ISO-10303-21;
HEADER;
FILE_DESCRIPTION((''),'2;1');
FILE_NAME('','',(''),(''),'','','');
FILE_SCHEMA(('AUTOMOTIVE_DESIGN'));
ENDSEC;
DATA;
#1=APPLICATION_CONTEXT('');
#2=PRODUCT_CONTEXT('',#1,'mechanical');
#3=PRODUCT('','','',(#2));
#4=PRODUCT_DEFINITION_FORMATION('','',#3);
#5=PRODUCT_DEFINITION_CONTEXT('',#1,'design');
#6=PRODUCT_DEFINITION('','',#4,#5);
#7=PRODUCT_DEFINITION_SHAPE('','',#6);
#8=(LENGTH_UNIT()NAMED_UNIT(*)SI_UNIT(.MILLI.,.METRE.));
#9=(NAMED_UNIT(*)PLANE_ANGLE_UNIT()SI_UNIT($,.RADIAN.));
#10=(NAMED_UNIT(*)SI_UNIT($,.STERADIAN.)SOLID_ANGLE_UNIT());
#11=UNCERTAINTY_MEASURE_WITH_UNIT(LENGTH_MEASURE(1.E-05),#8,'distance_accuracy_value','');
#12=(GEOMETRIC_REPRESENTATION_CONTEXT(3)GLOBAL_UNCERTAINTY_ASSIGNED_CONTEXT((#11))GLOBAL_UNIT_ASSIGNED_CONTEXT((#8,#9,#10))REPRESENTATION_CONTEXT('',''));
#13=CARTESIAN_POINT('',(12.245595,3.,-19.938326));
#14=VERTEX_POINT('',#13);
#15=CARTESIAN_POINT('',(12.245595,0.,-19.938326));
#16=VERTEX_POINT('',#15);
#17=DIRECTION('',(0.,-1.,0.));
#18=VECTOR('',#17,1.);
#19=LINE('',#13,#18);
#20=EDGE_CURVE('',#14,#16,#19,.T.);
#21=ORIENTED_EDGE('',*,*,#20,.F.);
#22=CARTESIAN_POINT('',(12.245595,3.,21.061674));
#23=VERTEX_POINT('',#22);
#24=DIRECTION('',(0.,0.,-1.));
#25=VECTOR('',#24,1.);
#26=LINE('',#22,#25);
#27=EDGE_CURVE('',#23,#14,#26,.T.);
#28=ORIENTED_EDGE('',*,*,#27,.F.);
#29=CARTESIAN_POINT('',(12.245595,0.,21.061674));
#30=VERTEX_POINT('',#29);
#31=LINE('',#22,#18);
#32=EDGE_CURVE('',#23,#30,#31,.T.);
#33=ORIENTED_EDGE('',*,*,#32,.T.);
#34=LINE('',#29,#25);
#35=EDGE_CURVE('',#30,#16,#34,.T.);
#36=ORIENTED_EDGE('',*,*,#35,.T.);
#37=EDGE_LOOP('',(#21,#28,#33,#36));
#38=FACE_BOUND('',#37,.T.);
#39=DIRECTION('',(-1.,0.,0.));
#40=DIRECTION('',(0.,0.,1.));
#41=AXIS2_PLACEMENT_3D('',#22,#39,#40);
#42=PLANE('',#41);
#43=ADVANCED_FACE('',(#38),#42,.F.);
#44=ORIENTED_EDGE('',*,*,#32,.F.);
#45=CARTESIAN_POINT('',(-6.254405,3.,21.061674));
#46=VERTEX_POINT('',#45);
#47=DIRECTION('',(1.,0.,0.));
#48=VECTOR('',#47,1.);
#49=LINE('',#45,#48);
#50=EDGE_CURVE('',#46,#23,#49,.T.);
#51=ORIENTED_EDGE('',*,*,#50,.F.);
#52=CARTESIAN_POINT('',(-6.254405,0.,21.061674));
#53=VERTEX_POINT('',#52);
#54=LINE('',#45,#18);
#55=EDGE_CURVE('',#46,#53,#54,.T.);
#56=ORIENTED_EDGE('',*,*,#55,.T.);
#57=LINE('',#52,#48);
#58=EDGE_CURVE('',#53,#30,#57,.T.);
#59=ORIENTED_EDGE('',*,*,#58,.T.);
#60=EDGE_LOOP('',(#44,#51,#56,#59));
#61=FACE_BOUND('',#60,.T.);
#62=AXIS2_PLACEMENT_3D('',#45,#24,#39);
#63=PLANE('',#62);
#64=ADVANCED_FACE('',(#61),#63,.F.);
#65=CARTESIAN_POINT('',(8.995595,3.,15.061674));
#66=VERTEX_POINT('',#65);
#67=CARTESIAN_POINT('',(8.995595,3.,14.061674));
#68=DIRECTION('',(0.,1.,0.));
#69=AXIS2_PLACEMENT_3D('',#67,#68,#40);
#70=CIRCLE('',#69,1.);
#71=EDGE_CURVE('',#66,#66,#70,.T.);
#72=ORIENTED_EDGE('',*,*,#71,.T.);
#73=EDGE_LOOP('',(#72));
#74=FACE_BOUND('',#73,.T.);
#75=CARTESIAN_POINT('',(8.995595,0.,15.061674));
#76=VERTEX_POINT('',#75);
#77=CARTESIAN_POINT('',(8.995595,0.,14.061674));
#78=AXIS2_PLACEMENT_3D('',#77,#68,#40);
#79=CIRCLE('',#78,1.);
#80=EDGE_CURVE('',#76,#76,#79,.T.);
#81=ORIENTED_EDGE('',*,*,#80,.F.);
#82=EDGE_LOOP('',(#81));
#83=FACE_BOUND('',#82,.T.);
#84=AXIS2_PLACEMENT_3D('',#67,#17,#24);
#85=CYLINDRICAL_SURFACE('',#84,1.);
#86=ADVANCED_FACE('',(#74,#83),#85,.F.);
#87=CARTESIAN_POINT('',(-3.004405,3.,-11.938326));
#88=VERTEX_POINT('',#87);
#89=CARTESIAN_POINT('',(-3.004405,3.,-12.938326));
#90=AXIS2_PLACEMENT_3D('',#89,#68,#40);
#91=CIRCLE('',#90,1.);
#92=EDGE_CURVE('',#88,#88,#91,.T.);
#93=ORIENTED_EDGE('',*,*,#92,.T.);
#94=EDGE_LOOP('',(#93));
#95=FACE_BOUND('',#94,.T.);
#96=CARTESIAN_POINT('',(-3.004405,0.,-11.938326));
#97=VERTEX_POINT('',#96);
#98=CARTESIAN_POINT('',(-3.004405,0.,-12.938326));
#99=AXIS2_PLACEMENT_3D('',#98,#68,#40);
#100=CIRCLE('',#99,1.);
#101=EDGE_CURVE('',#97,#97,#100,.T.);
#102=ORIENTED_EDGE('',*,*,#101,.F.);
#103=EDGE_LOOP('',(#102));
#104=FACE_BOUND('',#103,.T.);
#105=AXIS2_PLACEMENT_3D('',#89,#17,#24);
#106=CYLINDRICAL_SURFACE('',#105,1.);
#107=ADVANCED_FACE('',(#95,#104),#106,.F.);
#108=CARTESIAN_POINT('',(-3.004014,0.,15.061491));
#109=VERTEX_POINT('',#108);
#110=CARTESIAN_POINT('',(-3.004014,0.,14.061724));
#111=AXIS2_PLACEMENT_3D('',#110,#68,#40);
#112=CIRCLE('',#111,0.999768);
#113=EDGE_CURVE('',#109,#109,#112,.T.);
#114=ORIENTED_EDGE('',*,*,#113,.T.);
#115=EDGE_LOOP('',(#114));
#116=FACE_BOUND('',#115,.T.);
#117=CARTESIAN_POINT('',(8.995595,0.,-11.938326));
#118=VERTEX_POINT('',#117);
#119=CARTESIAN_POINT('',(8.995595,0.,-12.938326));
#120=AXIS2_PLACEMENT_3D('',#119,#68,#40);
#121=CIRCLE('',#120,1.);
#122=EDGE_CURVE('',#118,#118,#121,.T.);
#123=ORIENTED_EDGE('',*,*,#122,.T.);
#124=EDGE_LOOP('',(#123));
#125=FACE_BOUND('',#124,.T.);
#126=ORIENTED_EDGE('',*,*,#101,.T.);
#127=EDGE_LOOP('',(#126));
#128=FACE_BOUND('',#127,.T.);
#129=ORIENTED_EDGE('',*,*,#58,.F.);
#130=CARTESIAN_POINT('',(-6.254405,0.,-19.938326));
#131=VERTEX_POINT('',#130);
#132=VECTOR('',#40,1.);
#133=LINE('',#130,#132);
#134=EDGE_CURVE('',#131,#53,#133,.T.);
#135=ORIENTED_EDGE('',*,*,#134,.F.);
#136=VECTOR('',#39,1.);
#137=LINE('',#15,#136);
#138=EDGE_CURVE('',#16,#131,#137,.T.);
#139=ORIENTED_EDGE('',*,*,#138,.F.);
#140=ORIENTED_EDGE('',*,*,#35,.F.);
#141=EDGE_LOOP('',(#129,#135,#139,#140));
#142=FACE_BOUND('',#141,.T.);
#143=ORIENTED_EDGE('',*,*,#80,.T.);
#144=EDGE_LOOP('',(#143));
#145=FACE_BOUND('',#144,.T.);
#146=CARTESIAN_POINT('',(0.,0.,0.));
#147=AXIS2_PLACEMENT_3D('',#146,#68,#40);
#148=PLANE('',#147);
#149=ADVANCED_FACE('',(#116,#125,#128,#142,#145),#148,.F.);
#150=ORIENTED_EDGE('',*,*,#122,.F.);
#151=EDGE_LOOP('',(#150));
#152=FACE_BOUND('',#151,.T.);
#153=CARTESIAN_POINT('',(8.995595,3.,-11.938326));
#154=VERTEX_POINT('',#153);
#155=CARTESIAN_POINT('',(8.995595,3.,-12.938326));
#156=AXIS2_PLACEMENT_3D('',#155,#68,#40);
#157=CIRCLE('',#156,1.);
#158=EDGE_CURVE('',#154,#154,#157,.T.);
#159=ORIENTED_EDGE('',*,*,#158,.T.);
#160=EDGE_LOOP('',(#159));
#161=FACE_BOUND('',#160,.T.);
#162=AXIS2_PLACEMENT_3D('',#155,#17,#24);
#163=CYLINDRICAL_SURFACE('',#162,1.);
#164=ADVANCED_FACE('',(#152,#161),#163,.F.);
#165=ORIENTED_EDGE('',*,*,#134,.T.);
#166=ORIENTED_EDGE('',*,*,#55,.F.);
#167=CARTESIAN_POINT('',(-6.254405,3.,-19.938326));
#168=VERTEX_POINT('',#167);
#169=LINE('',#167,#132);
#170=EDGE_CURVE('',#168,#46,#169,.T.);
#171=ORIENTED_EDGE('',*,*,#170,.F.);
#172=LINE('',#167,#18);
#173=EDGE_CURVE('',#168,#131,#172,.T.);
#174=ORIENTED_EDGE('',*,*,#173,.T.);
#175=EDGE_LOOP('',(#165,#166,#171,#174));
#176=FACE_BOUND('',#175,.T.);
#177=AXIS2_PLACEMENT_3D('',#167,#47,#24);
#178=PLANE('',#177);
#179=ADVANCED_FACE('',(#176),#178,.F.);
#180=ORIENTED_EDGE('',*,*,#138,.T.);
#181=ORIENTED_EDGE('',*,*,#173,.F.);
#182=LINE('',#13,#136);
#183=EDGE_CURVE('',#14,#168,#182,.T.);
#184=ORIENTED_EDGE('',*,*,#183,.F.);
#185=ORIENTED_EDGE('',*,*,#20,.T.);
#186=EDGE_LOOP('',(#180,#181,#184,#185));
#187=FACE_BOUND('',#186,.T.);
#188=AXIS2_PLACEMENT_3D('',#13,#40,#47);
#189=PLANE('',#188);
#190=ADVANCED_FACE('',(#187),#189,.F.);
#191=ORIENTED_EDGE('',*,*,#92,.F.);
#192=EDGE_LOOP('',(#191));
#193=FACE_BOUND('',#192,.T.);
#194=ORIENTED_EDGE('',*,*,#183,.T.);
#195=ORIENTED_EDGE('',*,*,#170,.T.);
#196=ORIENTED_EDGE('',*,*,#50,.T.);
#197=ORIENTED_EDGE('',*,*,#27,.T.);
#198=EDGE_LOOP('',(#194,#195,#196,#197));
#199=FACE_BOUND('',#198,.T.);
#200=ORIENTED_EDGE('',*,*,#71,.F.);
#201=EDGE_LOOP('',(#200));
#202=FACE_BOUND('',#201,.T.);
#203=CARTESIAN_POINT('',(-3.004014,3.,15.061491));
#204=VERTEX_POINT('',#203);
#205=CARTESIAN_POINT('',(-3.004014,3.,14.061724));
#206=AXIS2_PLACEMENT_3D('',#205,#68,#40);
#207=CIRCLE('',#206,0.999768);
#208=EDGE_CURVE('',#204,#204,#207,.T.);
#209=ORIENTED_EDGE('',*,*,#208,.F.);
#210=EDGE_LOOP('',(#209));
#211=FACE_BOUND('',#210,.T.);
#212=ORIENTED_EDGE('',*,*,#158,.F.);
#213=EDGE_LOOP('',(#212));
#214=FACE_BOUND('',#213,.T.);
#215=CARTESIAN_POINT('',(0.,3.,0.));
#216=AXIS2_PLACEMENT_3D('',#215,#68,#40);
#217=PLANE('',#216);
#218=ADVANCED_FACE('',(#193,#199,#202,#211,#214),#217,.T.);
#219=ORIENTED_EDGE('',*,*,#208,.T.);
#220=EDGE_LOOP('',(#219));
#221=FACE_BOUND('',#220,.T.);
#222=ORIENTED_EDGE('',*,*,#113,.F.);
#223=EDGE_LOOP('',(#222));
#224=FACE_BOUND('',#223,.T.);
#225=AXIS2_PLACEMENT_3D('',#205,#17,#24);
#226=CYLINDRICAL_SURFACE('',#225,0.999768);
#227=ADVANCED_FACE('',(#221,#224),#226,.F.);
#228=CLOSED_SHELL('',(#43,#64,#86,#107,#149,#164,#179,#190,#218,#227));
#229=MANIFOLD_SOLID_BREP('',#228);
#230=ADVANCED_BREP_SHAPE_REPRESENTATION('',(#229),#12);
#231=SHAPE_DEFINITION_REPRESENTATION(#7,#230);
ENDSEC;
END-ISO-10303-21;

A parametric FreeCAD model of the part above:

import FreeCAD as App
import Part
import Sketcher

V = App.Vector
Q = App.Units.Quantity


def add_polygon(sketch, points):
    """Adds a closed chain of lines whose ends are joined by coincident constraints."""
    first, n = sketch.GeometryCount, len(points)
    for a, b in zip(points, points[1:] + points[:1]):
        sketch.addGeometry(Part.LineSegment(App.Vector(*a, 0), App.Vector(*b, 0)), False)
    for i in range(n):
        sketch.addConstraint(Sketcher.Constraint("Coincident", first + i, 2, first + (i + 1) % n, 1))

doc = App.newDocument("Part")
body = doc.addObject("PartDesign::Body", "Body")

sketch1 = body.newObject("Sketcher::SketchObject", "Sketch")
sketch1.AttachmentSupport = (doc.getObject("XZ_Plane"), [""])
sketch1.MapMode = "FlatFace"
add_polygon(sketch1, [(-6.3, -19.9), (-6.3, 21.1), (12.2, 21.1), (12.2, -19.9)])
sketch1.addGeometry(Part.Circle(V(-3, 14.1, 0), V(0, 0, 1), 1), False)
sketch1.addGeometry(Part.Circle(V(9, 14.1, 0), V(0, 0, 1), 1), False)
sketch1.addGeometry(Part.Circle(V(-3, -12.9, 0), V(0, 0, 1), 1), False)
sketch1.addGeometry(Part.Circle(V(9, -12.9, 0), V(0, 0, 1), 1), False)
sketch1.addConstraint(Sketcher.Constraint("Vertical", 0))
sketch1.addConstraint(Sketcher.Constraint("Horizontal", 1))
sketch1.addConstraint(Sketcher.Constraint("Vertical", 2))
sketch1.addConstraint(Sketcher.Constraint("Horizontal", 3))
sketch1.addConstraint(Sketcher.Constraint("Equal", 5, 6))
sketch1.addConstraint(Sketcher.Constraint("Equal", 6, 7))
sketch1.addConstraint(Sketcher.Constraint("Horizontal", 6, 3, 7, 3))
sketch1.addConstraint(Sketcher.Constraint("Vertical", 5, 3, 7, 3))
sketch1.addConstraint(Sketcher.Constraint("Diameter", 5, Q("2 mm")))
sketch1.addConstraint(Sketcher.Constraint("DistanceY", 0, 1, 0, 2, Q("41 mm")))
sketch1.addConstraint(Sketcher.Constraint("DistanceX", 1, 1, 1, 2, Q("18.5 mm")))
sketch1.addConstraint(Sketcher.Constraint("DistanceX", 6, 3, 5, 3, Q("12 mm")))
sketch1.addConstraint(Sketcher.Constraint("DistanceY", 6, 3, 5, 3, Q("27 mm")))
sketch1.addConstraint(Sketcher.Constraint("DistanceY", 5, 3, 0, 2, Q("7 mm")))
sketch1.addConstraint(Sketcher.Constraint("DistanceX", 0, 2, 5, 3, Q("15.25 mm")))
sketch1.addConstraint(Sketcher.Constraint("Diameter", 4, Q("1.999536 mm")))
sketch1.addConstraint(Sketcher.Constraint("DistanceX", 4, 3, 5, 3, Q("11.999608 mm")))
sketch1.addConstraint(Sketcher.Constraint("DistanceY", 6, 3, 4, 3, Q("27.00005 mm")))
sketch1.addConstraint(Sketcher.Constraint("DistanceX", 4, 3, -1, 1, Q("3.004014 mm")))
sketch1.addConstraint(Sketcher.Constraint("DistanceY", -1, 1, 4, 3, Q("14.061724 mm")))
pad1 = body.newObject("PartDesign::Pad", "Pad")
pad1.Profile = sketch1
pad1.Length = 3
pad1.Reversed = True

doc.recompute()
